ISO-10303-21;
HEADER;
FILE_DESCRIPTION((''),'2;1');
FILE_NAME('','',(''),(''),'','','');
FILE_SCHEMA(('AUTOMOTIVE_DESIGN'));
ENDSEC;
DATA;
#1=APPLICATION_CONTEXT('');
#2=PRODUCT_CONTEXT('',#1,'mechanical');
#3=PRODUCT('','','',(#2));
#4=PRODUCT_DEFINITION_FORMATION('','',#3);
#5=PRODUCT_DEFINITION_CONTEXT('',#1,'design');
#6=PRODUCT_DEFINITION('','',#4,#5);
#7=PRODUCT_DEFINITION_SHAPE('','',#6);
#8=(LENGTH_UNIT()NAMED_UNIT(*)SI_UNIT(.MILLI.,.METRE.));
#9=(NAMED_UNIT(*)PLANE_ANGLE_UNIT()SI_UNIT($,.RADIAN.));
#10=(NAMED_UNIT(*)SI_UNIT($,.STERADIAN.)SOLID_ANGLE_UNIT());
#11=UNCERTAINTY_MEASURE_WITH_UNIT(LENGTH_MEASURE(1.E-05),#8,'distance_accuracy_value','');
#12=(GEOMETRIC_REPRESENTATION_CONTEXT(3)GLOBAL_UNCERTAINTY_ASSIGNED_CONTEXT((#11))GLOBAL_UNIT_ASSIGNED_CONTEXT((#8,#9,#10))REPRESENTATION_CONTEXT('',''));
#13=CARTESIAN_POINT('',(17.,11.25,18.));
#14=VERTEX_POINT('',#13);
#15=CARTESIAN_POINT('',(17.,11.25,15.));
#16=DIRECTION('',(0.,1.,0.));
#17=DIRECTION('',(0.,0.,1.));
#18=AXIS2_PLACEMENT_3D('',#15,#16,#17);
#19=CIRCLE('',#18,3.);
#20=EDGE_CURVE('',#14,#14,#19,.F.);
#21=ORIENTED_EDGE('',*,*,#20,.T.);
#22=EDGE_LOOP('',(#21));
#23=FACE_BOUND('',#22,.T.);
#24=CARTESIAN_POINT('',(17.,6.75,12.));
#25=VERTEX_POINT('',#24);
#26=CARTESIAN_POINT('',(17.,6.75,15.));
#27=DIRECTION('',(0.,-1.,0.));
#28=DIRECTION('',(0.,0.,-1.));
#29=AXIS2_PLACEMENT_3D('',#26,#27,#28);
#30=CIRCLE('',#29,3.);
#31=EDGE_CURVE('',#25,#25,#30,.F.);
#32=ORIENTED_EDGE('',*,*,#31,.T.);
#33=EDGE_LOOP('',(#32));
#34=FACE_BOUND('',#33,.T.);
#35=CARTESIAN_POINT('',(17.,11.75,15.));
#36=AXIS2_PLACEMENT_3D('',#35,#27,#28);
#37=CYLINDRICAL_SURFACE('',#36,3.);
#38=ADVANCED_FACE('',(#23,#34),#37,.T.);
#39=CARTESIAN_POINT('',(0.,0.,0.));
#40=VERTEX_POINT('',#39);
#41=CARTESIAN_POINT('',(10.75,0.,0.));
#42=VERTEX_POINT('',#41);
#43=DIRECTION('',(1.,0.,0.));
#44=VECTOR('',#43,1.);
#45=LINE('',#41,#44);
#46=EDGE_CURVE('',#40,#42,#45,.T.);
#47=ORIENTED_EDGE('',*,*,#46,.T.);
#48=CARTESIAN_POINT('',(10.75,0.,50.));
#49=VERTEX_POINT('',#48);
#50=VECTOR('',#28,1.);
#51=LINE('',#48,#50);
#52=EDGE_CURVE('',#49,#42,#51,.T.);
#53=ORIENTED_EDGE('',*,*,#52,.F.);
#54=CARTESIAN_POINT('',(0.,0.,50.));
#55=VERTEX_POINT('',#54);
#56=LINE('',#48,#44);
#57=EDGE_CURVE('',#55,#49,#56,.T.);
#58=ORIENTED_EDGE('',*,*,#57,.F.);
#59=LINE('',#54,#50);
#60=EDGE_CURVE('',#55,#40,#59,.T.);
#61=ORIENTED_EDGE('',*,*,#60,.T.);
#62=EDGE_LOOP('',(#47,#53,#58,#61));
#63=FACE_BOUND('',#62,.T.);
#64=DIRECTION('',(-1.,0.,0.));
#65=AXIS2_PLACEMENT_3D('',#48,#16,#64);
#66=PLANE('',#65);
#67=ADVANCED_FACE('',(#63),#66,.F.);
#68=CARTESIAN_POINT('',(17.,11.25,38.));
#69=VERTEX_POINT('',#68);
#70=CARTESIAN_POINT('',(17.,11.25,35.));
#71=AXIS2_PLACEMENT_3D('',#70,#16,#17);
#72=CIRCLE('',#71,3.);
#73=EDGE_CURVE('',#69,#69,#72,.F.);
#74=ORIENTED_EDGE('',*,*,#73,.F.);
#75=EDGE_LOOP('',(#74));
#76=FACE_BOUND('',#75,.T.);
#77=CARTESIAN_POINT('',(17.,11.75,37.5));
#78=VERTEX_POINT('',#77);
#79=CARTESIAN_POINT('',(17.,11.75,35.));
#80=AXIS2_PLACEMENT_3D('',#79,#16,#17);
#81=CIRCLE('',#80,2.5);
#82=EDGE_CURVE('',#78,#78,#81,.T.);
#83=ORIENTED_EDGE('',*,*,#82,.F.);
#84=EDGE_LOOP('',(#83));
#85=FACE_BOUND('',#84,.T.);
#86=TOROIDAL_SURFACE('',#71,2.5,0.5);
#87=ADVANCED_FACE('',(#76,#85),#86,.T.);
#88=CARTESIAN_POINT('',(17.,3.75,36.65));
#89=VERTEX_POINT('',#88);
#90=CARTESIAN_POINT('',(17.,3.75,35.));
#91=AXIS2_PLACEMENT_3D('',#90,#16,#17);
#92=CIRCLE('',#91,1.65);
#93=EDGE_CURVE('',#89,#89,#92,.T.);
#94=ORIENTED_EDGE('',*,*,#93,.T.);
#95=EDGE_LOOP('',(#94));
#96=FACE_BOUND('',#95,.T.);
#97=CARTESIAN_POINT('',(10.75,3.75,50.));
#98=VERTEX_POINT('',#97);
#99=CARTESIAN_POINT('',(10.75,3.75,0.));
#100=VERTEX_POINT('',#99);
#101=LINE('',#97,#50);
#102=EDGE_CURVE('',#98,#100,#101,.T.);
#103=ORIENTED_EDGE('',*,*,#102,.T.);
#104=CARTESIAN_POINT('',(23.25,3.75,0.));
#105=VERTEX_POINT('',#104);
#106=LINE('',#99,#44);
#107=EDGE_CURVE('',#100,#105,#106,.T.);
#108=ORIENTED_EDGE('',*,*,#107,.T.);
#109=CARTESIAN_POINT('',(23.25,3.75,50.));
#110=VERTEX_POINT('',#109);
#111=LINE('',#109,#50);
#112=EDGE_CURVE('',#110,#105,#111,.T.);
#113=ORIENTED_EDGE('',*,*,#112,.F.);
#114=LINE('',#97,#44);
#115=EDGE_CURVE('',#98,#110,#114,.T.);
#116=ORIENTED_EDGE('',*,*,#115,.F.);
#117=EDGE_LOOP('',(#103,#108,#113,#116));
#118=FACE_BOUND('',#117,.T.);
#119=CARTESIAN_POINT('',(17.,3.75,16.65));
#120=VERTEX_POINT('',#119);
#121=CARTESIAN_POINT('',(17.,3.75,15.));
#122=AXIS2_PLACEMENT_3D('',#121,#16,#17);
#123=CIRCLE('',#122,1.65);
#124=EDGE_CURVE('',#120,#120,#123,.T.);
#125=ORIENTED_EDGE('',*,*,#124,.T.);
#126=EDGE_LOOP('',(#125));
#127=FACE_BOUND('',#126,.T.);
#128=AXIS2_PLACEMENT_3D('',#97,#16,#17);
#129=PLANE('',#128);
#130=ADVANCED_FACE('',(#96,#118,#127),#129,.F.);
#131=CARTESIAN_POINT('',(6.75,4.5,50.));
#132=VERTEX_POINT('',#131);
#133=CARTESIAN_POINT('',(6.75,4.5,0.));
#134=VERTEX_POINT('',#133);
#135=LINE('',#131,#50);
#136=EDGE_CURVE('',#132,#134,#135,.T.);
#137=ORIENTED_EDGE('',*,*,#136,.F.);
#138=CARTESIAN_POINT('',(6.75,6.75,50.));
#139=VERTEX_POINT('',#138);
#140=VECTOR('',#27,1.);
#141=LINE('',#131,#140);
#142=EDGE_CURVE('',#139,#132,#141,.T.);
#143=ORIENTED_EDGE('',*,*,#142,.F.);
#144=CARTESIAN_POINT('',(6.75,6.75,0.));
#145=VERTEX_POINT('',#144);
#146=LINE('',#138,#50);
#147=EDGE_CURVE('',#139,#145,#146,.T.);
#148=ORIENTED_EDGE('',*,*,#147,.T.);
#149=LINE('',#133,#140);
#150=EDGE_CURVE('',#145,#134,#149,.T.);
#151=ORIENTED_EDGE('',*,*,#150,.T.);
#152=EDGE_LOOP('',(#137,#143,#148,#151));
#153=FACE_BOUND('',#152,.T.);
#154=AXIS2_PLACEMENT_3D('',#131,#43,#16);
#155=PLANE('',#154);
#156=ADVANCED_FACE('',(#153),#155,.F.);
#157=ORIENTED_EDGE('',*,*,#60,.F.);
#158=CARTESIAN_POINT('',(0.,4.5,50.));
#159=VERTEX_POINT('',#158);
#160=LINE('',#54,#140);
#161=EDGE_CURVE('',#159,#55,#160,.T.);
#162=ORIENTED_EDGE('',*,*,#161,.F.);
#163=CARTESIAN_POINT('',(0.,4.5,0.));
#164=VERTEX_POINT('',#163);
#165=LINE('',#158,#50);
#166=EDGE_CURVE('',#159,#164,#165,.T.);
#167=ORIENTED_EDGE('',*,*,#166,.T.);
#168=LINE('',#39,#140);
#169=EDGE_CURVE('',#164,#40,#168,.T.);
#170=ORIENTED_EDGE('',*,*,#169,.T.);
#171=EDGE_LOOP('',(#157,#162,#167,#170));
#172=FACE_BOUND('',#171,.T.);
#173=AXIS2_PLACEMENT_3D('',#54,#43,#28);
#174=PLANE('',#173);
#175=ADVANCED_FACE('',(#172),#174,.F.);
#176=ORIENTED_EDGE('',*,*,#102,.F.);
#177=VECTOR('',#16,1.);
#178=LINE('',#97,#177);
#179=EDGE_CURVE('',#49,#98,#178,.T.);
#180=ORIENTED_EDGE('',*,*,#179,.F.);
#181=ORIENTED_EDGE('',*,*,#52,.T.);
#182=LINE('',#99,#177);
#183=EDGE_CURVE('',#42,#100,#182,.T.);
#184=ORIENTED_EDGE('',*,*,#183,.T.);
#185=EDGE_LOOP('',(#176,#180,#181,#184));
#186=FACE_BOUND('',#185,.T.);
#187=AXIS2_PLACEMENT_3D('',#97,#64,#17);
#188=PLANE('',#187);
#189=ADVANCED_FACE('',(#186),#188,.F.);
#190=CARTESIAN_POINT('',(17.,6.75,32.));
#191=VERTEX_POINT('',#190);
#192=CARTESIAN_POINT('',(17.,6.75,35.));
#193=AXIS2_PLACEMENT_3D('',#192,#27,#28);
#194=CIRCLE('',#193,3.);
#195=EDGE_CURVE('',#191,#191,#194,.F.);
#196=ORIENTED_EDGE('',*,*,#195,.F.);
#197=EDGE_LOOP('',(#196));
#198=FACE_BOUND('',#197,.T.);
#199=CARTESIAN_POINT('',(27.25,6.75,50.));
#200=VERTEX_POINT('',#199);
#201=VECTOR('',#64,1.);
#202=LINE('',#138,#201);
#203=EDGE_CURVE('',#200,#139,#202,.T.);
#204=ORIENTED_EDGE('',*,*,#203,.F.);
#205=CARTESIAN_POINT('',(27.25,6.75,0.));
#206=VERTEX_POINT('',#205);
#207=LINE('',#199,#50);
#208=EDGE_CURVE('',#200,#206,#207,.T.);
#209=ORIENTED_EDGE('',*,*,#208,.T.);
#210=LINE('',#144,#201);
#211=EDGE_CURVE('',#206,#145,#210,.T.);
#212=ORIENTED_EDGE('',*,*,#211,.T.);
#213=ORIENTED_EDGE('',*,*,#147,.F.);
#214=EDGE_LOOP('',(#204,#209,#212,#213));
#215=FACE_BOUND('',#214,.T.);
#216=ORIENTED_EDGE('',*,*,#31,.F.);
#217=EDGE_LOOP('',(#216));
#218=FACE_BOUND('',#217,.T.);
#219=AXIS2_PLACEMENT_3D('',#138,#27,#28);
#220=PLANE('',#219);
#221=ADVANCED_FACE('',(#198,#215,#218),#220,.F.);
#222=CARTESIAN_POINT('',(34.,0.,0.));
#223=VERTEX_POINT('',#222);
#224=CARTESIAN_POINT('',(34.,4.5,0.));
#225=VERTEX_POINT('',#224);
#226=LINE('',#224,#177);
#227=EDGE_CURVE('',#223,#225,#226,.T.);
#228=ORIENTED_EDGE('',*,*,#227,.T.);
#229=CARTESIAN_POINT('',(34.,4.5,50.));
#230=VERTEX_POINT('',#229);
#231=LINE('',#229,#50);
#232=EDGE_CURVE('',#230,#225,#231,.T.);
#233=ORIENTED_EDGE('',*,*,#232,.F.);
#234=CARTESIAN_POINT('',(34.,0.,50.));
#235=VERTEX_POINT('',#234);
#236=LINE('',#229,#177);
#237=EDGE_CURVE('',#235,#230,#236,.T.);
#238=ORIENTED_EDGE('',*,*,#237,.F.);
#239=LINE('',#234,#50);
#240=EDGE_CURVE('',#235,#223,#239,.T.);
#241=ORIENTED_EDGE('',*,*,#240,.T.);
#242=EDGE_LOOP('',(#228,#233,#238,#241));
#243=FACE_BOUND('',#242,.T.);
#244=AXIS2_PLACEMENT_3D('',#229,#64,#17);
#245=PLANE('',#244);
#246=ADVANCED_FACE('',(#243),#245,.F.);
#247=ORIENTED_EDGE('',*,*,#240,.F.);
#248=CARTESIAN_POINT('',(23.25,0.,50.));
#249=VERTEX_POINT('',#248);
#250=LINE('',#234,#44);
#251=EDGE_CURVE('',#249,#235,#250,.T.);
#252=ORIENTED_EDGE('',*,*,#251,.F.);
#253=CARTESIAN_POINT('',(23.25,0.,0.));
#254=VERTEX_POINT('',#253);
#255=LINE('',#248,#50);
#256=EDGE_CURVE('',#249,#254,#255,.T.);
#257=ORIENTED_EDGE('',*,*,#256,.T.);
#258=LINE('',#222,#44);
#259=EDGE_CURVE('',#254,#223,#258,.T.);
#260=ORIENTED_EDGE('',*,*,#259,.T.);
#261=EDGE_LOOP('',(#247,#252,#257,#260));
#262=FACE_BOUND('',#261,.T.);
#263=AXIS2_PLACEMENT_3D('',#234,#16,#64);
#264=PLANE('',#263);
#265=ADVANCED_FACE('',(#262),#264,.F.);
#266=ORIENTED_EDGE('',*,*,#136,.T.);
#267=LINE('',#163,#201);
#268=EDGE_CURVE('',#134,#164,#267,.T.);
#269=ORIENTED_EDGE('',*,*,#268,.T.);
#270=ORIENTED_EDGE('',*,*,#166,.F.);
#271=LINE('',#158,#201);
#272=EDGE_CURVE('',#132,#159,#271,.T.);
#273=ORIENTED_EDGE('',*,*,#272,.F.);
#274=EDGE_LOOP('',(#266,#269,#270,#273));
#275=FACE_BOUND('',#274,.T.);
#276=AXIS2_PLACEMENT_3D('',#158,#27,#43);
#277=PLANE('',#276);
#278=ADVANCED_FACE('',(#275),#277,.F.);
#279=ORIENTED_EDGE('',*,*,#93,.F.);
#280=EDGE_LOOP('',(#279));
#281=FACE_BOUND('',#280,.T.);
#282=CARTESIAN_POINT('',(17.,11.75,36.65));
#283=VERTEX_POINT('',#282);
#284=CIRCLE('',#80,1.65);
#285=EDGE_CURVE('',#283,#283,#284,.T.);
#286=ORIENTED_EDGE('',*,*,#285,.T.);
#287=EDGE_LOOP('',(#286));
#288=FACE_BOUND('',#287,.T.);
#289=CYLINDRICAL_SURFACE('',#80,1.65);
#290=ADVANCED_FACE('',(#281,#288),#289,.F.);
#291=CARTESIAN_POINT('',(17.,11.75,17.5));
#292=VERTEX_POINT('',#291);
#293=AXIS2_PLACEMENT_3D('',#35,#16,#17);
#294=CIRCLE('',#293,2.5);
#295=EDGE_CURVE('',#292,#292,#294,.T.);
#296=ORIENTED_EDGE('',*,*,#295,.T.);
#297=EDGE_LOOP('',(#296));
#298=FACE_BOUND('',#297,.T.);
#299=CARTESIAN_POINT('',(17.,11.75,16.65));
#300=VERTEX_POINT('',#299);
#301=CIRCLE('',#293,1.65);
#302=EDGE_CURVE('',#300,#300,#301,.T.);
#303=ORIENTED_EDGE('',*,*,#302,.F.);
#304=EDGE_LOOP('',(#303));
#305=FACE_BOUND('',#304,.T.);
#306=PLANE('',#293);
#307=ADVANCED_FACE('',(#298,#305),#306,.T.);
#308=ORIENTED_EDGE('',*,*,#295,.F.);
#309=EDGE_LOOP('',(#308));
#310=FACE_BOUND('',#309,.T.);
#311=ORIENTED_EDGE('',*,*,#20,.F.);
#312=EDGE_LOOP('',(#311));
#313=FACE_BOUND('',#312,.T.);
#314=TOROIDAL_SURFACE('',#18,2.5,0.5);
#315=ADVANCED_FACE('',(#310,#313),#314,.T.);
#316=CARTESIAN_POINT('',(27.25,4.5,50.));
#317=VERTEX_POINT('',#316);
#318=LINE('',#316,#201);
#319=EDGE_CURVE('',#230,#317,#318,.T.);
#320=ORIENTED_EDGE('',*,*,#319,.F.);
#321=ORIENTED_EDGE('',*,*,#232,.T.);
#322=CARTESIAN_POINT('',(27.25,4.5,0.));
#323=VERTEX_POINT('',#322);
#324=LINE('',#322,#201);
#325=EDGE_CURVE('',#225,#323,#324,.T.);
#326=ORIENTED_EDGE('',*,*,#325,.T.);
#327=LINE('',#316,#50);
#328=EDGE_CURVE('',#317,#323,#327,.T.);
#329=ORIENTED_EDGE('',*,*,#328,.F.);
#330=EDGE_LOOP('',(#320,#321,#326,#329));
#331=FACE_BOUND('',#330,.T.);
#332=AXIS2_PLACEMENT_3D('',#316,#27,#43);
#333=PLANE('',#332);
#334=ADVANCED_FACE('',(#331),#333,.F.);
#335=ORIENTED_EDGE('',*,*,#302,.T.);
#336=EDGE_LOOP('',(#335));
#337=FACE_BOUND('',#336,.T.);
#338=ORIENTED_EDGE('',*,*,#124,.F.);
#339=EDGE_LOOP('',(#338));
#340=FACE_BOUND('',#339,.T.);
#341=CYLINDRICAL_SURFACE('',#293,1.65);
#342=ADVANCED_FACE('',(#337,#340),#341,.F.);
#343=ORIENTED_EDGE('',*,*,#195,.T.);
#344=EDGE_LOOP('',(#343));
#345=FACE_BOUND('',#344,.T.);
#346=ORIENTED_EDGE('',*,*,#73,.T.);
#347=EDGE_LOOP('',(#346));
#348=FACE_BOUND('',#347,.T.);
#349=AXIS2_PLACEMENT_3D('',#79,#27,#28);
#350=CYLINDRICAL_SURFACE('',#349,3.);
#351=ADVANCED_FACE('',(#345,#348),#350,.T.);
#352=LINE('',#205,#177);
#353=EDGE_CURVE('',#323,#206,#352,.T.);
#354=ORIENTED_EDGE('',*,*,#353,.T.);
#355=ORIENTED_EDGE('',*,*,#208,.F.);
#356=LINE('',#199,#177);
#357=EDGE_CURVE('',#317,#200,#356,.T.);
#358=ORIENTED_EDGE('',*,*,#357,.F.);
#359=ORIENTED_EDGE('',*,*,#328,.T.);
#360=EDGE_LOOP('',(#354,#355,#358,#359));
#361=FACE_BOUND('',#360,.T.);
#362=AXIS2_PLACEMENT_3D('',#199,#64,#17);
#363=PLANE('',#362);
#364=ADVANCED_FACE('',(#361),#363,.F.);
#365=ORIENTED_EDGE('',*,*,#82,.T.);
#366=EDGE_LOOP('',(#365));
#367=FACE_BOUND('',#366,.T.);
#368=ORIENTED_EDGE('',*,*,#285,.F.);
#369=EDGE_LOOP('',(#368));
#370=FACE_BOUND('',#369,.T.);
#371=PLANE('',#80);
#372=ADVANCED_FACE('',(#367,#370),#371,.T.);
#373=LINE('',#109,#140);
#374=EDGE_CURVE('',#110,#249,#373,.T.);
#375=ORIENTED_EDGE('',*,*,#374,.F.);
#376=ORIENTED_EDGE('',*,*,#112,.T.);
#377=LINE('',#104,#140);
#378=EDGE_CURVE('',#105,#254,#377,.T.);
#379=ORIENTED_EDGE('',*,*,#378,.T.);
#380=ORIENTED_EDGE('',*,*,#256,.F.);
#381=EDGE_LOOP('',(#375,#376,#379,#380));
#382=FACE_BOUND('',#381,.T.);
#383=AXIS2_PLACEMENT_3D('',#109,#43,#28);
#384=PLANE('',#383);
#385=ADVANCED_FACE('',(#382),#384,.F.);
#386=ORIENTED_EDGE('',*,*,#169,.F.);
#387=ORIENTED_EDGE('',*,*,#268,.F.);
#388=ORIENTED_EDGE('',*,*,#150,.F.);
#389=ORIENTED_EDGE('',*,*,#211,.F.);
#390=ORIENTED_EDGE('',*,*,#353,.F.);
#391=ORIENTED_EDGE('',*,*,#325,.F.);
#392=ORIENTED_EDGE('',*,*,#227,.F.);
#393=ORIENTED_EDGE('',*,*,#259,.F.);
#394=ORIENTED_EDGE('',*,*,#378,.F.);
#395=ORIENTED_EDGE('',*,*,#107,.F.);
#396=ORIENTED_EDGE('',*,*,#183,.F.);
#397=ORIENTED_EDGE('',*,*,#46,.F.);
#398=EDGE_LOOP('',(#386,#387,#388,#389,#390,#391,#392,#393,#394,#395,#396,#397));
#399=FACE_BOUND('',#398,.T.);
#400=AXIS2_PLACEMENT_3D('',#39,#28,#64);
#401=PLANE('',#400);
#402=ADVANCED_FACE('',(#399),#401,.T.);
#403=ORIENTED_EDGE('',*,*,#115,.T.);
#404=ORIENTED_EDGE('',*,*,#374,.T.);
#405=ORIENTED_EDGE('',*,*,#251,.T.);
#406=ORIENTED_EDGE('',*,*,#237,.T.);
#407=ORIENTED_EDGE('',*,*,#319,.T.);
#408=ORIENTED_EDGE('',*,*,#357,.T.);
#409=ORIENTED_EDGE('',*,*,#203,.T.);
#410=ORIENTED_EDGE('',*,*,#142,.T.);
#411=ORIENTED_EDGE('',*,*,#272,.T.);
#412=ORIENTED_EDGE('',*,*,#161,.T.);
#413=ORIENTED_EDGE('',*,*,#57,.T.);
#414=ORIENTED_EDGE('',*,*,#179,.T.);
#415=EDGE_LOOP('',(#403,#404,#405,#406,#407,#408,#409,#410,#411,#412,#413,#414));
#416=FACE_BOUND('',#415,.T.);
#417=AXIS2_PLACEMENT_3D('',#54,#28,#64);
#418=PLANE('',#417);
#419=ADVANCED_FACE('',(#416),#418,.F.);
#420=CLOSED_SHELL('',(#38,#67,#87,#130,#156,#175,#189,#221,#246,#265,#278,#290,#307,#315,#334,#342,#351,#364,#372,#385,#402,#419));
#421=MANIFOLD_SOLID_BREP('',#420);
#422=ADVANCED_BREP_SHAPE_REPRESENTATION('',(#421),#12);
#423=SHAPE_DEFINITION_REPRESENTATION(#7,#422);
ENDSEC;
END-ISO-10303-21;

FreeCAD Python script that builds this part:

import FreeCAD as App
import Part
import Sketcher
from FreeCAD import Vector
Q = App.Units.Quantity


def edges_at(feature, points):
    """Names of the edges that pass closest to the given points."""
    edges = feature.Shape.Edges
    near = lambda p: min(range(len(edges)), key=lambda i: edges[i].distToShape(Part.Vertex(*p))[0])
    return sorted({f"Edge{near(p) + 1}" for p in points})

doc = App.newDocument("Part")
body = doc.addObject("PartDesign::Body", "Body")

# Sketch on XY plane
sketch1 = body.newObject("Sketcher::SketchObject", "Sketch")
sketch1.AttachmentSupport = (doc.getObject("XY_Plane"), [""])
sketch1.MapMode = "FlatFace"
sketch1.addGeometry([
    Part.LineSegment(Vector(0, 4.5, 0), Vector(0, 0, 0)),  # 0
    Part.LineSegment(Vector(0, 0, 0), Vector(10.75, 0, 0)),  # 1
    Part.LineSegment(Vector(10.75, 0, 0), Vector(10.75, 3.75, 0)),  # 2
    Part.LineSegment(Vector(10.75, 3.75, 0), Vector(23.25, 3.75, 0)),  # 3
    Part.LineSegment(Vector(23.25, 3.75, 0), Vector(23.25, 0, 0)),  # 4
    Part.LineSegment(Vector(23.25, 0, 0), Vector(34, 0, 0)),  # 5
    Part.LineSegment(Vector(34, 0, 0), Vector(34, 4.5, 0)),  # 6
    Part.LineSegment(Vector(34, 4.5, 0), Vector(27.25, 4.5, 0)),  # 7
    Part.LineSegment(Vector(27.25, 4.5, 0), Vector(27.25, 6.75, 0)),  # 8
    Part.LineSegment(Vector(27.25, 6.75, 0), Vector(6.75, 6.75, 0)),  # 9
    Part.LineSegment(Vector(6.75, 6.75, 0), Vector(6.75, 4.5, 0)),  # 10
    Part.LineSegment(Vector(6.75, 4.5, 0), Vector(0, 4.5, 0)),  # 11
], False)
sketch1.addConstraint([
    Sketcher.Constraint("Coincident", 0, 2, 1, 1),
    Sketcher.Constraint("Coincident", 1, 2, 2, 1),
    Sketcher.Constraint("Coincident", 2, 2, 3, 1),
    Sketcher.Constraint("Coincident", 3, 2, 4, 1),
    Sketcher.Constraint("Coincident", 4, 2, 5, 1),
    Sketcher.Constraint("Coincident", 5, 2, 6, 1),
    Sketcher.Constraint("Coincident", 6, 2, 7, 1),
    Sketcher.Constraint("Coincident", 7, 2, 8, 1),
    Sketcher.Constraint("Coincident", 8, 2, 9, 1),
    Sketcher.Constraint("Coincident", 9, 2, 10, 1),
    Sketcher.Constraint("Coincident", 10, 2, 11, 1),
    Sketcher.Constraint("Coincident", 11, 2, 0, 1),
    Sketcher.Constraint("Vertical", 0),
    Sketcher.Constraint("Horizontal", 1),
    Sketcher.Constraint("Vertical", 2),
    Sketcher.Constraint("Horizontal", 3),
    Sketcher.Constraint("Vertical", 4),
    Sketcher.Constraint("Horizontal", 5),
    Sketcher.Constraint("Vertical", 6),
    Sketcher.Constraint("Horizontal", 7),
    Sketcher.Constraint("Vertical", 8),
    Sketcher.Constraint("Horizontal", 9),
    Sketcher.Constraint("Vertical", 10),
    Sketcher.Constraint("Horizontal", 11),
    Sketcher.Constraint("Coincident", 0, 2, -1, 1),
    Sketcher.Constraint("PointOnObject", 4, 2, -1),
    Sketcher.Constraint("Horizontal", 7, 2, 10, 2),
    Sketcher.Constraint("Equal", 1, 5),
    Sketcher.Constraint("Equal", 7, 11),
    Sketcher.Constraint("DistanceX", 3, 1, 3, 2, Q("12.5 mm")),
    Sketcher.Constraint("DistanceX", 9, 2, 9, 1, Q("20.5 mm")),
    Sketcher.Constraint("DistanceY", 0, 2, 0, 1, Q("4.5 mm")),
    Sketcher.Constraint("DistanceX", -1, 1, 5, 2, Q("34 mm")),
    Sketcher.Constraint("DistanceY", 3, 2, 8, 2, Q("3 mm")),
    Sketcher.Constraint("DistanceY", 2, 1, 2, 2, Q("3.75 mm")),
])
pad1 = body.newObject("PartDesign::Pad", "Pad")
pad1.Profile = sketch1
pad1.Length = 50

# Sketch on XZ plane
sketch2 = body.newObject("Sketcher::SketchObject", "Sketch001")
sketch2.AttachmentSupport = (doc.getObject("XZ_Plane"), [""])
sketch2.MapMode = "FlatFace"
sketch2.AttachmentOffset = App.Placement(Vector(0, 0, -6.75), App.Rotation())
sketch2.addGeometry([
    Part.Circle(Vector(17, 15, 0), Vector(0, 0, 1), 3),
    Part.Circle(Vector(17, 35, 0), Vector(0, 0, 1), 3),
], False)
sketch2.addConstraint([
    Sketcher.Constraint("Equal", 0, 1),
    Sketcher.Constraint("Vertical", 0, 3, 1, 3),
    Sketcher.Constraint("Diameter", 0, Q("6 mm")),
    Sketcher.Constraint("DistanceX", -1, 1, 0, 3, Q("17 mm")),
    Sketcher.Constraint("DistanceY", -1, 1, 0, 3, Q("15 mm")),
    Sketcher.Constraint("DistanceY", -1, 1, 1, 3, Q("35 mm")),
])
pad2 = body.newObject("PartDesign::Pad", "Pad001")
pad2.Profile = sketch2
pad2.Length = 5
pad2.Reversed = True

# Sketch on XZ plane
sketch3 = body.newObject("Sketcher::SketchObject", "Sketch002")
sketch3.AttachmentSupport = (doc.getObject("XZ_Plane"), [""])
sketch3.MapMode = "FlatFace"
sketch3.AttachmentOffset = App.Placement(Vector(0, 0, -11.75), App.Rotation())
sketch3.addGeometry([
    Part.Circle(Vector(17, 15, 0), Vector(0, 0, 1), 1.65),
    Part.Circle(Vector(17, 35, 0), Vector(0, 0, 1), 1.65),
], False)
sketch3.addConstraint([
    Sketcher.Constraint("Equal", 0, 1),
    Sketcher.Constraint("Vertical", 0, 3, 1, 3),
    Sketcher.Constraint("Diameter", 0, Q("3.3 mm")),
    Sketcher.Constraint("DistanceX", -1, 1, 0, 3, Q("17 mm")),
    Sketcher.Constraint("DistanceY", -1, 1, 0, 3, Q("15 mm")),
    Sketcher.Constraint("DistanceY", -1, 1, 1, 3, Q("35 mm")),
])
doc.recompute()
hole = body.newObject("PartDesign::Hole", "Hole")
hole.Profile = sketch3
hole.ThreadType = "None"
hole.Diameter = 3.3
hole.DepthType = "ThroughAll"
hole.Reversed = True
doc.recompute()

fillet = body.newObject("PartDesign::Fillet", "Fillet")
fillet.Base = (hole, edges_at(hole, [(17, 11.75, 18), (17, 11.75, 38)]))
fillet.Radius = 0.5

doc.recompute()
